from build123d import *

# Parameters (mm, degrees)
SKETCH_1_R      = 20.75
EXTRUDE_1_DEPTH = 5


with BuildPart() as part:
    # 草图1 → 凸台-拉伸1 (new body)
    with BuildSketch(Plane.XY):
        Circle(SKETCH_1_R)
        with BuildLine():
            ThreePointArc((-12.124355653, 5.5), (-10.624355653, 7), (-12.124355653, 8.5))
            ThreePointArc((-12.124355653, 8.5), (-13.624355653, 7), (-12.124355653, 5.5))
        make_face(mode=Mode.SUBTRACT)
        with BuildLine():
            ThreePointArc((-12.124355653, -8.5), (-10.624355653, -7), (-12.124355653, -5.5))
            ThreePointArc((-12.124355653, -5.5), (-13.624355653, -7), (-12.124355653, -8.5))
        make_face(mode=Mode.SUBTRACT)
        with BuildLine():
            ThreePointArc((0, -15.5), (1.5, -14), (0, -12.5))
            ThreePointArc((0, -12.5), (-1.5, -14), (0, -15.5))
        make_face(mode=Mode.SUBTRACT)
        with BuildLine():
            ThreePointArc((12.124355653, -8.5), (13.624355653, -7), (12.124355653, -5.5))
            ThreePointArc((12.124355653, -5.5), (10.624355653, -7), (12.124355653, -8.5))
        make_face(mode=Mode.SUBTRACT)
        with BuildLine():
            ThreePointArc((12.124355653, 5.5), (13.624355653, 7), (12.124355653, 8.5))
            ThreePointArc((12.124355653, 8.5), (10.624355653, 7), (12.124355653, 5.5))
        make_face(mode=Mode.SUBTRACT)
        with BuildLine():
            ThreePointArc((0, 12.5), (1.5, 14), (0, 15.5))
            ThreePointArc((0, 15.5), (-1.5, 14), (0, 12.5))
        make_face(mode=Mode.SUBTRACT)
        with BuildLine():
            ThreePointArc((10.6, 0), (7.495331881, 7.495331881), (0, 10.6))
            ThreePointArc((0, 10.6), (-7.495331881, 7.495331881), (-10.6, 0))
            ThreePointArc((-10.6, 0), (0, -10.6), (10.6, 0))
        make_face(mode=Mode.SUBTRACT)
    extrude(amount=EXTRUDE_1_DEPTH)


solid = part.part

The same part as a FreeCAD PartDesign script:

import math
import FreeCAD as App
import Part
import Sketcher

doc = App.newDocument("Part")
body = doc.addObject("PartDesign::Body", "Body")

sketch1 = doc.addObject("Sketcher::SketchObject", "Sketch")
body.addObject(sketch1)
sketch1.AttachmentSupport = (doc.XY_Plane, [""])
sketch1.MapMode = "FlatFace"
sketch1.addGeometry(Part.Circle(App.Vector(0, 0, 0), App.Vector(0, 0, 1), 20.75), False)
sketch1.addGeometry(Part.Circle(App.Vector(-12.124356, -7, 0), App.Vector(0, 0, 1), 1.5), False)
sketch1.addGeometry(Part.Circle(App.Vector(0, -14, 0), App.Vector(0, 0, 1), 1.5), False)
sketch1.addGeometry(Part.Circle(App.Vector(12.124356, -7, 0), App.Vector(0, 0, 1), 1.5), False)
sketch1.addGeometry(Part.Circle(App.Vector(-12.124356, 7, 0), App.Vector(0, 0, 1), 1.5), False)
sketch1.addGeometry(Part.ArcOfCircle(Part.Circle(App.Vector(0, 0, 0), App.Vector(0, 0, 1), 10.6), math.radians(0), math.radians(90)), False)
sketch1.addGeometry(Part.ArcOfCircle(Part.Circle(App.Vector(0, 0, 0), App.Vector(0, 0, 1), 10.6), math.radians(180), math.radians(360)), False)
sketch1.addGeometry(Part.ArcOfCircle(Part.Circle(App.Vector(0, 0, 0), App.Vector(0, 0, 1), 10.6), math.radians(90), math.radians(180)), False)
sketch1.addGeometry(Part.Circle(App.Vector(12.124356, 7, 0), App.Vector(0, 0, 1), 1.5), False)
sketch1.addGeometry(Part.Circle(App.Vector(0, 14, 0), App.Vector(0, 0, 1), 1.5), False)
sketch1.addConstraint(Sketcher.Constraint("Tangent", 5, 1, 6, 2))
sketch1.addConstraint(Sketcher.Constraint("Tangent", 6, 1, 7, 2))
sketch1.addConstraint(Sketcher.Constraint("Tangent", 7, 1, 5, 2))
sketch1.addConstraint(Sketcher.Constraint("Coincident", 0, 3, -1, 1))
sketch1.addConstraint(Sketcher.Constraint("Coincident", 5, 3, -1, 1))
sketch1.addConstraint(Sketcher.Constraint("Equal", 1, 2))
sketch1.addConstraint(Sketcher.Constraint("Equal", 2, 3))
sketch1.addConstraint(Sketcher.Constraint("Equal", 3, 4))
sketch1.addConstraint(Sketcher.Constraint("Equal", 4, 8))
sketch1.addConstraint(Sketcher.Constraint("Equal", 8, 9))
sketch1.addConstraint(Sketcher.Constraint("Symmetric", 3, 3, 4, 3, -1, 1))
sketch1.addConstraint(Sketcher.Constraint("Symmetric", 1, 3, 8, 3, -1, 1))
sketch1.addConstraint(Sketcher.Constraint("Symmetric", 2, 3, 9, 3, -1, 1))
sketch1.addConstraint(Sketcher.Constraint("Symmetric", 1, 3, 3, 3, -2))
sketch1.addConstraint(Sketcher.Constraint("PointOnObject", 2, 3, -2))
sketch1.addConstraint(Sketcher.Constraint("PointOnObject", 5, 1, -1))
sketch1.addConstraint(Sketcher.Constraint("PointOnObject", 6, 1, -1))
sketch1.addConstraint(Sketcher.Constraint("PointOnObject", 7, 1, -2))
sketch1.addConstraint(Sketcher.Constraint("Diameter", 1, 3.0))
sketch1.addConstraint(Sketcher.Constraint("Diameter", 0, 41.5))
sketch1.addConstraint(Sketcher.Constraint("Radius", 5, 10.6))
sketch1.addConstraint(Sketcher.Constraint("DistanceY", 1, 3, -1, 1, 7.0))
sketch1.addConstraint(Sketcher.Constraint("DistanceY", 2, 3, -1, 1, 14.0))
sketch1.addConstraint(Sketcher.Constraint("DistanceX", 1, 3, 3, 3, 24.248711))
pad1 = doc.addObject("PartDesign::Pad", "Pad")
body.addObject(pad1)
pad1.Profile = sketch1
pad1.Length = 5

doc.recompute()
